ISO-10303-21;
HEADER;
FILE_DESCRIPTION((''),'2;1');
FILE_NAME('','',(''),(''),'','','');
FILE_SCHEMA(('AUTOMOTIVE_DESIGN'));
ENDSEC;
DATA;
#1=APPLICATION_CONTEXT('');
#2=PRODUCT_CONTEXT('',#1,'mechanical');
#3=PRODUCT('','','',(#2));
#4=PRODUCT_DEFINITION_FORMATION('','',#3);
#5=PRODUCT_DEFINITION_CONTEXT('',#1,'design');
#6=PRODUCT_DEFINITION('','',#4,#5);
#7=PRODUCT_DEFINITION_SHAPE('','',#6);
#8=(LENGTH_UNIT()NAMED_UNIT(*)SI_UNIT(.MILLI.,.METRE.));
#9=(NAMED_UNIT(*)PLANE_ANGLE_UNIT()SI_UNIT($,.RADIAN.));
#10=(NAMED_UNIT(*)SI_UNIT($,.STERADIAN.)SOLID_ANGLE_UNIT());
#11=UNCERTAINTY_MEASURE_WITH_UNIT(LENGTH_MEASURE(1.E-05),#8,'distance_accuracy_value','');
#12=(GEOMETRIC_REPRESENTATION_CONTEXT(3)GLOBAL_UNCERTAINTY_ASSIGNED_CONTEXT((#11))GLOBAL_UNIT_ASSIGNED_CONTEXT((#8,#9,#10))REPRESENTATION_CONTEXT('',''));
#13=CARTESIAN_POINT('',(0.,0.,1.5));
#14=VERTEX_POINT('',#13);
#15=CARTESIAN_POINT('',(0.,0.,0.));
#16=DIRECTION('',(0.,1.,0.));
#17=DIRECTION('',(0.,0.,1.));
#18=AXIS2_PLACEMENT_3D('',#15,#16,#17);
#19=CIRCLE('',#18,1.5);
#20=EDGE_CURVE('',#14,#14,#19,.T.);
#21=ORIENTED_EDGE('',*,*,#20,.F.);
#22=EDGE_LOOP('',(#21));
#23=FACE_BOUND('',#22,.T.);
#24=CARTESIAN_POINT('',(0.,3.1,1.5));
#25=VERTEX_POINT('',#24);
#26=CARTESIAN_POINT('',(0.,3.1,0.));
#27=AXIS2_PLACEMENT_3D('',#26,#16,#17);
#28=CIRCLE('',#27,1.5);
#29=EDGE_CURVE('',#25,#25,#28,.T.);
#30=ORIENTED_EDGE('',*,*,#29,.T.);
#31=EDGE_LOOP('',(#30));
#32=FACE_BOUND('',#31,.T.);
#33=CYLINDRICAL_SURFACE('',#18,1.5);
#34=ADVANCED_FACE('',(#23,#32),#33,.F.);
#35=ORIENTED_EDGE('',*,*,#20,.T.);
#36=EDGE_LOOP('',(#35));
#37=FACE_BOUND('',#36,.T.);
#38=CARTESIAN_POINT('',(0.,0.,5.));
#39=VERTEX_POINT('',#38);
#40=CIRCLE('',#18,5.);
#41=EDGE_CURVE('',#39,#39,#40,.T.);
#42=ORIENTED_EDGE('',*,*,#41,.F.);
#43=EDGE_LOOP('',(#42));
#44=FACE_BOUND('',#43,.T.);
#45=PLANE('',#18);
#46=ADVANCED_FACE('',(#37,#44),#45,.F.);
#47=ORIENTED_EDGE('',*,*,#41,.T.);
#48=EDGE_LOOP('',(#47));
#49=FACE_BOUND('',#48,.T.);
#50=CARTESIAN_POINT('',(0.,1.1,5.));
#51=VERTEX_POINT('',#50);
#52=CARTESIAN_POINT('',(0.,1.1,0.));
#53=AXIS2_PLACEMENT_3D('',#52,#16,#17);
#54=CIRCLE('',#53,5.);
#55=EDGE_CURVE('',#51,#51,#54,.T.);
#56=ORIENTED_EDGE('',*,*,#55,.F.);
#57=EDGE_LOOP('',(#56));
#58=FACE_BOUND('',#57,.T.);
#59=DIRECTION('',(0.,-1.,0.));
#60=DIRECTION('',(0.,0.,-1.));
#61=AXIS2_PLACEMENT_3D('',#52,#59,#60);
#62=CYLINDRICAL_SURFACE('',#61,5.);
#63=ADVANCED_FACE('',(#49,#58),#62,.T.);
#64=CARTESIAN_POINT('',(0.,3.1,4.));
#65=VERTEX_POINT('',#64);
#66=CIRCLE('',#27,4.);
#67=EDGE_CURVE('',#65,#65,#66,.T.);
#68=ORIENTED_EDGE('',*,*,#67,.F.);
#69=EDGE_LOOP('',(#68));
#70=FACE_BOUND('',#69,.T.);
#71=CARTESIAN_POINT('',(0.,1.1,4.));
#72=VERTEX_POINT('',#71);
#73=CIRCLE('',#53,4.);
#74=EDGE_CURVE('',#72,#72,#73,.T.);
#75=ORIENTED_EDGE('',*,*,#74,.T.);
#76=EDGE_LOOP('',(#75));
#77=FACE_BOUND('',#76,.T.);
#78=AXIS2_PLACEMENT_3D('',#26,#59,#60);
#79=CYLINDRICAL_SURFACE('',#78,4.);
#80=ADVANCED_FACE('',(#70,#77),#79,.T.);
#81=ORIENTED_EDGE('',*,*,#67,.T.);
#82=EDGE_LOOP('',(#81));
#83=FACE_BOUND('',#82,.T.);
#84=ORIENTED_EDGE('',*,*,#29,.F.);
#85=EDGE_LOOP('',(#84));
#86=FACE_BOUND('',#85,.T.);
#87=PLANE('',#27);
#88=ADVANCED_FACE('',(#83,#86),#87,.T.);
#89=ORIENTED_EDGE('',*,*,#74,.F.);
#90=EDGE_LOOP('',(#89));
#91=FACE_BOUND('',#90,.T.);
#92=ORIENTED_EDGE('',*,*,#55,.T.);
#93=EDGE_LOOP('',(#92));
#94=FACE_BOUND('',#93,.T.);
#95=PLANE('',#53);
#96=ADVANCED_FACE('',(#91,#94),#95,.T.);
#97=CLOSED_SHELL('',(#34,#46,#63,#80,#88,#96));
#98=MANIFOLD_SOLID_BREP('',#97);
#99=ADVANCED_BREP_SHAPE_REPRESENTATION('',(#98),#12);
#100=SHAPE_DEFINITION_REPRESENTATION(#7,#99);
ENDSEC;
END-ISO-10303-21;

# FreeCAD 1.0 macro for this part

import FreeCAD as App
import Part
import Sketcher

V = App.Vector

doc = App.newDocument("Part")
body = doc.addObject("PartDesign::Body", "Body")

# Sketch on XZ plane
sketch1 = body.newObject("Sketcher::SketchObject", "Sketch")
sketch1.AttachmentSupport = (doc.getObject("XZ_Plane"), [""])
sketch1.MapMode = "FlatFace"
sketch1.addGeometry(Part.Circle(V(0, 0, 0), V(0, 0, 1), 5), False)
sketch1.addConstraint(Sketcher.Constraint("Coincident", 0, 3, -1, 1))
sketch1.addConstraint(Sketcher.Constraint("Diameter", 0, 10.0))
pad1 = body.newObject("PartDesign::Pad", "Pad")
pad1.Profile = sketch1
pad1.Length = 1.1
pad1.Reversed = True

# Sketch on XZ plane
sketch2 = body.newObject("Sketcher::SketchObject", "Sketch001")
sketch2.AttachmentSupport = (doc.getObject("XZ_Plane"), [""])
sketch2.MapMode = "FlatFace"
sketch2.AttachmentOffset = App.Placement(V(0, 0, -1.1), App.Rotation())
sketch2.addGeometry(Part.Circle(V(0, 0, 0), V(0, 0, 1), 4), False)
sketch2.addConstraint(Sketcher.Constraint("Coincident", 0, 3, -1, 1))
sketch2.addConstraint(Sketcher.Constraint("Diameter", 0, 8.0))
pad2 = body.newObject("PartDesign::Pad", "Pad001")
pad2.Profile = sketch2
pad2.Length = 2
pad2.Reversed = True

# Sketch on XZ plane
sketch3 = body.newObject("Sketcher::SketchObject", "Sketch002")
sketch3.AttachmentSupport = (doc.getObject("XZ_Plane"), [""])
sketch3.MapMode = "FlatFace"
sketch3.AttachmentOffset = App.Placement(V(0, 0, -3.1), App.Rotation())
sketch3.addGeometry(Part.Circle(V(0, 0, 0), V(0, 0, 1), 1.5), False)
sketch3.addConstraint(Sketcher.Constraint("Coincident", 0, 3, -1, 1))
sketch3.addConstraint(Sketcher.Constraint("Diameter", 0, 3.0))
pocket1 = body.newObject("PartDesign::Pocket", "Pocket")
pocket1.Profile = sketch3
pocket1.Type = "ThroughAll"
pocket1.Reversed = True

doc.recompute()
